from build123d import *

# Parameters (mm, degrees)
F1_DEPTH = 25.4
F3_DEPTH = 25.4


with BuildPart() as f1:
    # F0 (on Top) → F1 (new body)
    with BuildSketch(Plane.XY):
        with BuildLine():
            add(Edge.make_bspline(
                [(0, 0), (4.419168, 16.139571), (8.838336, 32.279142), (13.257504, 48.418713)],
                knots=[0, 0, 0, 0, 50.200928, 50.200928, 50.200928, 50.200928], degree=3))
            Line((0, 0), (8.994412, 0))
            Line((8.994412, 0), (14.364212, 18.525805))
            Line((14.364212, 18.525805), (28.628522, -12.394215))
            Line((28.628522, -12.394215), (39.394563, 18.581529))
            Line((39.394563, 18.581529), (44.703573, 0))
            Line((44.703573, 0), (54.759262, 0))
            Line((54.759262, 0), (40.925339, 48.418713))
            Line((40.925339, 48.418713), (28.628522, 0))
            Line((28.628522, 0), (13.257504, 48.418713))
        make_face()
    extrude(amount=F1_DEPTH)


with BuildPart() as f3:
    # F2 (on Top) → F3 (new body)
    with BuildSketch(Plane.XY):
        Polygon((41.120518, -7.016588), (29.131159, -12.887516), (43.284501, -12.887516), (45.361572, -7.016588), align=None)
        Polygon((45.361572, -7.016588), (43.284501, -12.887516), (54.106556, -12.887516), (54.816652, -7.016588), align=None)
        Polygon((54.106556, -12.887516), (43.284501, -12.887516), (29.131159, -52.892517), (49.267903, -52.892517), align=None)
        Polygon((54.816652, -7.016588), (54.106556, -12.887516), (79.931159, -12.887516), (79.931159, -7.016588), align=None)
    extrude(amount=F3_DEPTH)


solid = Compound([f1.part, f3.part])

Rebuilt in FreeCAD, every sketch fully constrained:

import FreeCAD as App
import Part
import Sketcher
Q = App.Units.Quantity


def add_polygon(sketch, points):
    """Adds a closed chain of lines whose ends are joined by coincident constraints."""
    first, n = sketch.GeometryCount, len(points)
    for a, b in zip(points, points[1:] + points[:1]):
        sketch.addGeometry(Part.LineSegment(App.Vector(*a, 0), App.Vector(*b, 0)), False)
    for i in range(n):
        sketch.addConstraint(Sketcher.Constraint("Coincident", first + i, 2, first + (i + 1) % n, 1))

doc = App.newDocument("Part")
body = doc.addObject("PartDesign::Body", "Body")

# Sketch on XY plane
sketch1 = body.newObject("Sketcher::SketchObject", "Sketch")
sketch1.AttachmentSupport = (doc.getObject("XY_Plane"), [""])
sketch1.MapMode = "FlatFace"
sketch1.addGeometry([
    Part.BSplineCurve([App.Vector(0, 0, 0), App.Vector(4.419168, 16.139571, 0), App.Vector(8.838336, 32.279142, 0), App.Vector(13.257504, 48.418713, 0)], [4, 4], [0, 50.200928], False, 3, [1, 1, 1, 1], False),  # 0
    Part.LineSegment(App.Vector(0, 0, 0), App.Vector(8.994412, 0, 0)),  # 1
    Part.LineSegment(App.Vector(8.994412, 0, 0), App.Vector(14.364212, 18.525805, 0)),  # 2
    Part.LineSegment(App.Vector(14.364212, 18.525805, 0), App.Vector(28.628522, -12.394215, 0)),  # 3
    Part.LineSegment(App.Vector(28.628522, -12.394215, 0), App.Vector(39.394563, 18.581529, 0)),  # 4
    Part.LineSegment(App.Vector(39.394563, 18.581529, 0), App.Vector(44.703573, 0, 0)),  # 5
    Part.LineSegment(App.Vector(44.703573, 0, 0), App.Vector(54.759262, 0, 0)),  # 6
    Part.LineSegment(App.Vector(54.759262, 0, 0), App.Vector(40.925339, 48.418713, 0)),  # 7
    Part.LineSegment(App.Vector(40.925339, 48.418713, 0), App.Vector(28.628522, 0, 0)),  # 8
    Part.LineSegment(App.Vector(28.628522, 0, 0), App.Vector(13.257504, 48.418713, 0)),  # 9
], False)
sketch1.addConstraint([
    Sketcher.Constraint("Block", 0),
    Sketcher.Constraint("Coincident", 0, 1, 1, 1),
    Sketcher.Constraint("Coincident", 1, 2, 2, 1),
    Sketcher.Constraint("Coincident", 2, 2, 3, 1),
    Sketcher.Constraint("Coincident", 3, 2, 4, 1),
    Sketcher.Constraint("Coincident", 4, 2, 5, 1),
    Sketcher.Constraint("Coincident", 5, 2, 6, 1),
    Sketcher.Constraint("Coincident", 6, 2, 7, 1),
    Sketcher.Constraint("Coincident", 7, 2, 8, 1),
    Sketcher.Constraint("Coincident", 8, 2, 9, 1),
    Sketcher.Constraint("Coincident", 9, 2, 0, 2),
    Sketcher.Constraint("Horizontal", 1),
    Sketcher.Constraint("Horizontal", 6),
    Sketcher.Constraint("PointOnObject", 5, 2, -1),
    Sketcher.Constraint("PointOnObject", 8, 2, -1),
    Sketcher.Constraint("Parallel", 5, 7),
    Sketcher.Constraint("Horizontal", 7, 2, 9, 2),
    Sketcher.Constraint("Vertical", 3, 2, 8, 2),
    Sketcher.Constraint("Distance", 9, Q("2 in")),
    Sketcher.Constraint("Distance", 3, 34.051699),
    Sketcher.Constraint("DistanceX", 6, 1, 6, 2, 10.055689),
    Sketcher.Constraint("DistanceX", 1, 2, 2, 2, 5.3698),
    Sketcher.Constraint("DistanceX", 4, 2, 6, 2, 15.364699),
    Sketcher.Constraint("Distance", 4, 32.793358),
    Sketcher.Constraint("DistanceX", 1, 1, 1, 2, 8.994412),
    Sketcher.Constraint("DistanceY", -1, 1, 4, 2, 18.581529),
    Sketcher.Constraint("DistanceX", -1, 1, 7, 2, 40.925339),
])
pad1 = body.newObject("PartDesign::Pad", "Pad")
pad1.Profile = sketch1
pad1.Length = Q("1 in")
body2 = doc.addObject("PartDesign::Body", "Body001")

# Sketch on XY plane
sketch2 = body2.newObject("Sketcher::SketchObject", "Sketch001")
sketch2.AttachmentSupport = (doc.getObject("XY_Plane001"), [""])
sketch2.MapMode = "FlatFace"
add_polygon(sketch2, [(41, -7), (29, -13), (43, -13), (29, -53), (49, -53), (54, -13), (80, -13), (80, -7)])  # lines 0-7
sketch2.addConstraint([
    Sketcher.Constraint("Horizontal", 1),
    Sketcher.Constraint("Horizontal", 3),
    Sketcher.Constraint("Horizontal", 5),
    Sketcher.Constraint("Vertical", 6),
    Sketcher.Constraint("Horizontal", 7),
    Sketcher.Constraint("Horizontal", 1, 2, 4, 2),
    Sketcher.Constraint("Vertical", 0, 2, 2, 2),
    Sketcher.Constraint("DistanceX", 0, 2, 5, 2, Q("2 in")),
    Sketcher.Constraint("Angle", 0, Q("-153.910015 deg")),
    Sketcher.Constraint("DistanceY", 2, 2, 0, 2, Q("1.575 in")),
    Sketcher.Constraint("DistanceX", 1, 1, 1, 2, 14.153342),
    Sketcher.Constraint("DistanceX", 7, 2, 7, 1, 38.810641),
    Sketcher.Constraint("DistanceX", -1, 1, 1, 2, 43.284501),
    Sketcher.Constraint("DistanceX", 1, 2, 3, 2, 5.983402),
    Sketcher.Constraint("Distance", 4, 40.296559),
    Sketcher.Constraint("DistanceY", 0, 2, -1, 1, 12.887516),
])
pad2 = body2.newObject("PartDesign::Pad", "Pad001")
pad2.Profile = sketch2
pad2.Length = Q("1 in")

doc.recompute()
